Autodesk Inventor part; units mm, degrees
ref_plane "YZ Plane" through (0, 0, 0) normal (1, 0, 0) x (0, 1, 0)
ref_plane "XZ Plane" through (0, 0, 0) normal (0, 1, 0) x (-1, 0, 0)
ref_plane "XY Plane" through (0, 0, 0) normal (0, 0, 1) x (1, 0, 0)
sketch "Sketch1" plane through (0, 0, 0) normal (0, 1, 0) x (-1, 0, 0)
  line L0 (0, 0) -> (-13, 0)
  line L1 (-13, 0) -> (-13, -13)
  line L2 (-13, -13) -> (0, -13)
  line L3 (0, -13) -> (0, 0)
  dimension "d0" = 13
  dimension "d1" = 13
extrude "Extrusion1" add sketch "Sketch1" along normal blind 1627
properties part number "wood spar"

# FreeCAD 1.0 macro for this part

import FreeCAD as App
import Part
import Sketcher
Q = App.Units.Quantity


def add_polygon(sketch, points):
    """Adds a closed chain of lines whose ends are joined by coincident constraints."""
    first, n = sketch.GeometryCount, len(points)
    for a, b in zip(points, points[1:] + points[:1]):
        sketch.addGeometry(Part.LineSegment(App.Vector(*a, 0), App.Vector(*b, 0)), False)
    for i in range(n):
        sketch.addConstraint(Sketcher.Constraint("Coincident", first + i, 2, first + (i + 1) % n, 1))

doc = App.newDocument("Part")
body = doc.addObject("PartDesign::Body", "Body")

sketch1 = body.newObject("Sketcher::SketchObject", "Sketch")
sketch1.AttachmentSupport = (doc.getObject("XZ_Plane"), [""])
sketch1.MapMode = "FlatFace"
add_polygon(sketch1, [(0, -13), (0, 0), (13, 0), (13, -13)])
sketch1.addConstraint(Sketcher.Constraint("Vertical", 0))
sketch1.addConstraint(Sketcher.Constraint("Horizontal", 1))
sketch1.addConstraint(Sketcher.Constraint("Vertical", 2))
sketch1.addConstraint(Sketcher.Constraint("Horizontal", 3))
sketch1.addConstraint(Sketcher.Constraint("Coincident", 0, 2, -1, 1))
sketch1.addConstraint(Sketcher.Constraint("Equal", 3, 0))
sketch1.addConstraint(Sketcher.Constraint("DistanceX", 1, 1, 1, 2, Q("13 mm")))
pad1 = body.newObject("PartDesign::Pad", "Pad")
pad1.Profile = sketch1
pad1.Length = 1627
pad1.Reversed = True

doc.recompute()
